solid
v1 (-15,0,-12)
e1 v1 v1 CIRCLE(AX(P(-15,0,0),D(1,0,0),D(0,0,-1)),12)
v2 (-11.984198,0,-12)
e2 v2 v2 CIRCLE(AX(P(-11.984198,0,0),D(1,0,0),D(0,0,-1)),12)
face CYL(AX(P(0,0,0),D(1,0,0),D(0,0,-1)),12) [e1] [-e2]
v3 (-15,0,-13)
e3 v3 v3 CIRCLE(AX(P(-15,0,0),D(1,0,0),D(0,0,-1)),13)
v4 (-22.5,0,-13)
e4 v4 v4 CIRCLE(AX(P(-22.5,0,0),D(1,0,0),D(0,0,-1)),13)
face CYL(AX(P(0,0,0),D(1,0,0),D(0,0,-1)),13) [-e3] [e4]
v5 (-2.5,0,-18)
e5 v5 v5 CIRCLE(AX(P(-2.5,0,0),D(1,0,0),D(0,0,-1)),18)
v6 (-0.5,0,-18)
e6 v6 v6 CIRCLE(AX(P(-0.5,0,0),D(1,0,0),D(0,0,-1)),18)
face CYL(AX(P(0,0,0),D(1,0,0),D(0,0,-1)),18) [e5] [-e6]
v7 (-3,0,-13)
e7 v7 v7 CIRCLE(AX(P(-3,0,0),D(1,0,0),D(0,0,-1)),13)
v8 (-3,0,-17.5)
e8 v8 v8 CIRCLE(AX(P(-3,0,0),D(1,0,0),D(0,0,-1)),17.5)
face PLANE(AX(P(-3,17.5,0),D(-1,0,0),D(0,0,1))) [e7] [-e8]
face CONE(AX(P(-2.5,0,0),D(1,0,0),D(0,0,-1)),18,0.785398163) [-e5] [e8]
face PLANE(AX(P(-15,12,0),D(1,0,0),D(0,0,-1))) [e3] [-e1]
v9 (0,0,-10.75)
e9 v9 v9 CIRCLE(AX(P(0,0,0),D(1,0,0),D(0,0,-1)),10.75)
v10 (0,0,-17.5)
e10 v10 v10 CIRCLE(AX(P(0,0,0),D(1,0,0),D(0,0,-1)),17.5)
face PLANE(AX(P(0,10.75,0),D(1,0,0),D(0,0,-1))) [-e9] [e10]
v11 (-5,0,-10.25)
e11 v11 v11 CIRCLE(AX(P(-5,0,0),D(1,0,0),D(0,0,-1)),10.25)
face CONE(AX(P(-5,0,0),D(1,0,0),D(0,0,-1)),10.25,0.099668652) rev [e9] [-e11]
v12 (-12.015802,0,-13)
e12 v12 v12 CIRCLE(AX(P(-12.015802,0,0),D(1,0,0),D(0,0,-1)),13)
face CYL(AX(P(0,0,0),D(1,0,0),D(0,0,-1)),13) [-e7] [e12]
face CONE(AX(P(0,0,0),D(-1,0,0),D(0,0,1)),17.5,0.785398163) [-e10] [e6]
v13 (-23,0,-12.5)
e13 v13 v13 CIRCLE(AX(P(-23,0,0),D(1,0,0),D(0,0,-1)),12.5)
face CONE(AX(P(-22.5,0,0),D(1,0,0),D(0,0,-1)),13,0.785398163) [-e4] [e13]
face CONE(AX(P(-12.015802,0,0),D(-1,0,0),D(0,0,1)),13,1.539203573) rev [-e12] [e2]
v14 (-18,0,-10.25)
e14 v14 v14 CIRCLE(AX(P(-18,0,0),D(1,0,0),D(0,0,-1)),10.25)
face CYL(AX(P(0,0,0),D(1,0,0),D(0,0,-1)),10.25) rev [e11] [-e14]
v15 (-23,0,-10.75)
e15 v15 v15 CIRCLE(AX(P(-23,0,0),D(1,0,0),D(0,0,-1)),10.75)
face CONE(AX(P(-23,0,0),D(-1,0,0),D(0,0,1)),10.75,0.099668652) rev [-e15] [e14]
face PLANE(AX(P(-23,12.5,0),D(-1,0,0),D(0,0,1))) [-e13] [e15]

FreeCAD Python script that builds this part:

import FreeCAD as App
import Part
import Sketcher
Q = App.Units.Quantity


def add_polygon(sketch, points):
    """Adds a closed chain of lines whose ends are joined by coincident constraints."""
    first, n = sketch.GeometryCount, len(points)
    for a, b in zip(points, points[1:] + points[:1]):
        sketch.addGeometry(Part.LineSegment(App.Vector(*a, 0), App.Vector(*b, 0)), False)
    for i in range(n):
        sketch.addConstraint(Sketcher.Constraint("Coincident", first + i, 2, first + (i + 1) % n, 1))

doc = App.newDocument("Part")
body = doc.addObject("PartDesign::Body", "Body")

# Sketch on XY plane
sketch1 = body.newObject("Sketcher::SketchObject", "Sketch")
sketch1.AttachmentSupport = (doc.getObject("XY_Plane"), [""])
sketch1.MapMode = "FlatFace"
add_polygon(sketch1, [(0, 10.8), (0, 17.5), (-0.5, 18), (-2.5, 18), (-3, 17.5), (-3, 13), (-12, 13), (-12, 12), (-15, 12), (-15, 13), (-22.5, 13), (-23, 12.5), (-23, 10.8), (-18, 10.2), (-5, 10.2)])  # lines 0-14
sketch1.addConstraint([
    Sketcher.Constraint("Vertical", 0),
    Sketcher.Constraint("Horizontal", 2),
    Sketcher.Constraint("Vertical", 4),
    Sketcher.Constraint("Horizontal", 5),
    Sketcher.Constraint("Horizontal", 7),
    Sketcher.Constraint("Vertical", 8),
    Sketcher.Constraint("Horizontal", 9),
    Sketcher.Constraint("Vertical", 11),
    Sketcher.Constraint("Horizontal", 13),
    Sketcher.Constraint("PointOnObject", 0, 2, -2),
    Sketcher.Constraint("Perpendicular", 1, 3),
    Sketcher.Constraint("Parallel", 3, 10),
    Sketcher.Constraint("Horizontal", 0, 2, 3, 2),
    Sketcher.Constraint("Horizontal", 5, 2, 8, 2),
    Sketcher.Constraint("Horizontal", 11, 2, 14, 2),
    Sketcher.Constraint("Equal", 1, 3),
    Sketcher.Constraint("Equal", 3, 10),
    Sketcher.Constraint("Equal", 12, 14),
    Sketcher.Constraint("DistanceX", 2, 2, 2, 1, Q("2 mm")),
    Sketcher.Constraint("DistanceX", 13, 1, 13, 2, Q("13 mm")),
    Sketcher.Constraint("DistanceY", 8, 1, 8, 2, Q("1 mm")),
    Sketcher.Constraint("DistanceX", 9, 2, 9, 1, Q("7.5 mm")),
    Sketcher.Constraint("DistanceY", 4, 2, 4, 1, Q("4.5 mm")),
    Sketcher.Constraint("DistanceY", -1, 1, 1, 2, Q("18 mm")),
    Sketcher.Constraint("DistanceX", 3, 2, -1, 1, Q("3 mm")),
    Sketcher.Constraint("DistanceX", 7, 2, -1, 1, Q("15 mm")),
    Sketcher.Constraint("DistanceY", 0, 1, 0, 2, Q("6.75 mm")),
    Sketcher.Constraint("DistanceY", 12, 2, 11, 2, Q("0.5 mm")),
    Sketcher.Constraint("DistanceX", 5, 2, 5, 1, Q("9.015802 mm")),
    Sketcher.Constraint("DistanceX", 7, 2, 7, 1, Q("3.015802 mm")),
])
revolution = body.newObject("PartDesign::Revolution", "Revolution")
revolution.Profile = sketch1
revolution.ReferenceAxis = (sketch1, ["H_Axis"])
revolution.Angle = 360

doc.recompute()
